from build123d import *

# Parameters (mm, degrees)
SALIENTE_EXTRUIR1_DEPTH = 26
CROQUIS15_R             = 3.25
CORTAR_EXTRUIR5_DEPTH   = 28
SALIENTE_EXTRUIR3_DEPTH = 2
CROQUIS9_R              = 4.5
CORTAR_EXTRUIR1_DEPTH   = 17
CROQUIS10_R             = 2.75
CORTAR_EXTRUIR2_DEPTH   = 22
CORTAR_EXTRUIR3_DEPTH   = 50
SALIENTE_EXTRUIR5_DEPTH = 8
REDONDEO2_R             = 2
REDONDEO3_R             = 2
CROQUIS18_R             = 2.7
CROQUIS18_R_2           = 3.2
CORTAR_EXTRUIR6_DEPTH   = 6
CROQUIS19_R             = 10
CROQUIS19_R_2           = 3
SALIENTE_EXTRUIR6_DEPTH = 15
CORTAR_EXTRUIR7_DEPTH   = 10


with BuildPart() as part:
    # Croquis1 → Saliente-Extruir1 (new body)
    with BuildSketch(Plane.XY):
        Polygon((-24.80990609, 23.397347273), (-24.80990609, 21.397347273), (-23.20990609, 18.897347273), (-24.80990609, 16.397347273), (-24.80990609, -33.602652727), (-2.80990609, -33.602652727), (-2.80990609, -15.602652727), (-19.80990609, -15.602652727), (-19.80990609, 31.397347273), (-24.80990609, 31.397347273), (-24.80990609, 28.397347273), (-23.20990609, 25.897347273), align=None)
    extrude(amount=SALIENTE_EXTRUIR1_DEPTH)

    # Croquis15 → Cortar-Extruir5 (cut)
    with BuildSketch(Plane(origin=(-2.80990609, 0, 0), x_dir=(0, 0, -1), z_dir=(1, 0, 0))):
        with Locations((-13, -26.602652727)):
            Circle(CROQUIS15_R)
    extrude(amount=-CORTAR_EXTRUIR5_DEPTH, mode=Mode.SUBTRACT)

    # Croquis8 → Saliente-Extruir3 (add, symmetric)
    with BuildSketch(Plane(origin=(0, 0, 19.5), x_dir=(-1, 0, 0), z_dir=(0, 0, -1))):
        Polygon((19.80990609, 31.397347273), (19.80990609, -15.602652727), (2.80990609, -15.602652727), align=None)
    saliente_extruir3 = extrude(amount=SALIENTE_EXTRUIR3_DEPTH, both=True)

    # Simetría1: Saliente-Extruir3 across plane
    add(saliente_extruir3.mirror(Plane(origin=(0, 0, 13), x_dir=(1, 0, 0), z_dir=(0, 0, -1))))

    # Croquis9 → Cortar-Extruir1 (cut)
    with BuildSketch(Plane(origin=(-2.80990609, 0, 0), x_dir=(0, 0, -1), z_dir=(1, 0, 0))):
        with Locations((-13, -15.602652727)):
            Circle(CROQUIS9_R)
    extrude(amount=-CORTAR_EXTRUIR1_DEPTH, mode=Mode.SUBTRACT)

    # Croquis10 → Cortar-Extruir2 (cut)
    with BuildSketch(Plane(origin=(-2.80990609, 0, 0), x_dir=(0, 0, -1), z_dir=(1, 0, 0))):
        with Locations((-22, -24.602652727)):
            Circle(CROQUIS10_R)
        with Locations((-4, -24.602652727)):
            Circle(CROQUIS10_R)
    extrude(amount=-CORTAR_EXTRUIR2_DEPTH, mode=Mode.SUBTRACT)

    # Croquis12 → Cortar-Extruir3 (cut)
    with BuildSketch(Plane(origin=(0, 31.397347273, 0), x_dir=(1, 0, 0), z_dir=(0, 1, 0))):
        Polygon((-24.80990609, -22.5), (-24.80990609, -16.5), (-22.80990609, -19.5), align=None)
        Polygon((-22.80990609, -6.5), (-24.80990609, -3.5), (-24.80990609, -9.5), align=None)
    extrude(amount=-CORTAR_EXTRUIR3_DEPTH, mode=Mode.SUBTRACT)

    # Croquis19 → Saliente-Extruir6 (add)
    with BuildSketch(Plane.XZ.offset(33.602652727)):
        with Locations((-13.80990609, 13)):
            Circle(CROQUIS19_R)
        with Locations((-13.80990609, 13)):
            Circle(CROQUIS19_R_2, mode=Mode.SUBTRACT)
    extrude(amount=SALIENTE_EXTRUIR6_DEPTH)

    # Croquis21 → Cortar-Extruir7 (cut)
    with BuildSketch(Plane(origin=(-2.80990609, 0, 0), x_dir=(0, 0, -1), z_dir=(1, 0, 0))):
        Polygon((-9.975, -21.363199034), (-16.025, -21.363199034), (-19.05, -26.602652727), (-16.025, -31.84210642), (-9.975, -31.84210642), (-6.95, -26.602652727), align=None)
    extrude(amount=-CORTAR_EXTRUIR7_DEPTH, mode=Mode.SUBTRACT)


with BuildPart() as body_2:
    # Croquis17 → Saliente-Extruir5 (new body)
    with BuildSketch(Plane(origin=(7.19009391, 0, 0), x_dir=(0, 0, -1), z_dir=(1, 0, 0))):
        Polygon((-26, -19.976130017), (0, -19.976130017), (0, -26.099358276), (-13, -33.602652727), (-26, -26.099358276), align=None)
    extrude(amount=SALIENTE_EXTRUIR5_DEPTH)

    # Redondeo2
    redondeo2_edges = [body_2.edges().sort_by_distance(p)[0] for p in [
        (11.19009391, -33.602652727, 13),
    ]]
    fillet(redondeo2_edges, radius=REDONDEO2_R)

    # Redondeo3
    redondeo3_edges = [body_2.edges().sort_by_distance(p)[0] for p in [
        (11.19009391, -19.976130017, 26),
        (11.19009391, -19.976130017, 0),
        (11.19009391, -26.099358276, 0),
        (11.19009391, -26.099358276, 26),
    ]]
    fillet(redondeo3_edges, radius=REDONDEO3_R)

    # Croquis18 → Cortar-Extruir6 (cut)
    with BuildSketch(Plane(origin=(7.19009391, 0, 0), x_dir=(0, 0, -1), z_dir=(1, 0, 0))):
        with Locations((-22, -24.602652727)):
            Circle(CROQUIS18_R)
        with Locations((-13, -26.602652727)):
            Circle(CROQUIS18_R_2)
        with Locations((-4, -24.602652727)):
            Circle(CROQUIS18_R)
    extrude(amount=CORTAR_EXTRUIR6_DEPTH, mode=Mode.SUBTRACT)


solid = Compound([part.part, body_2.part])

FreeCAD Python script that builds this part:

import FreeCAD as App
import Part
import Sketcher

V = App.Vector
Q = App.Units.Quantity


def edges_at(feature, points):
    """Names of the edges that pass closest to the given points."""
    edges = feature.Shape.Edges
    near = lambda p: min(range(len(edges)), key=lambda i: edges[i].distToShape(Part.Vertex(*p))[0])
    return sorted({f"Edge{near(p) + 1}" for p in points})


def add_polygon(sketch, points):
    """Adds a closed chain of lines whose ends are joined by coincident constraints."""
    first, n = sketch.GeometryCount, len(points)
    for a, b in zip(points, points[1:] + points[:1]):
        sketch.addGeometry(Part.LineSegment(App.Vector(*a, 0), App.Vector(*b, 0)), False)
    for i in range(n):
        sketch.addConstraint(Sketcher.Constraint("Coincident", first + i, 2, first + (i + 1) % n, 1))

doc = App.newDocument("Part")
body = doc.addObject("PartDesign::Body", "Body")

sketch1 = body.newObject("Sketcher::SketchObject", "Sketch")
sketch1.AttachmentSupport = (doc.getObject("XY_Plane"), [""])
sketch1.MapMode = "FlatFace"
add_polygon(sketch1, [(-24.8, 23.4), (-24.8, 21.4), (-23.2, 18.9), (-24.8, 16.4), (-24.8, -33.6), (-2.8, -33.6), (-2.8, -15.6), (-19.8, -15.6), (-19.8, 31.4), (-24.8, 31.4), (-24.8, 28.4), (-23.2, 25.9)])
sketch1.addConstraint([
    Sketcher.Constraint("Vertical", 0),
    Sketcher.Constraint("Vertical", 3),
    Sketcher.Constraint("Horizontal", 4),
    Sketcher.Constraint("Vertical", 5),
    Sketcher.Constraint("Horizontal", 6),
    Sketcher.Constraint("Vertical", 7),
    Sketcher.Constraint("Horizontal", 8),
    Sketcher.Constraint("Vertical", 9),
    Sketcher.Constraint("Parallel", 1, 10),
    Sketcher.Constraint("Parallel", 2, 11),
    Sketcher.Constraint("Vertical", 0, 2, 2, 2),
    Sketcher.Constraint("Vertical", 3, 2, 8, 2),
    Sketcher.Constraint("Vertical", 1, 2, 10, 2),
    Sketcher.Constraint("Equal", 1, 2),
    Sketcher.Constraint("DistanceX", 4, 1, 4, 2, 22.0),
    Sketcher.Constraint("DistanceX", 6, 2, 6, 1, 17.0),
    Sketcher.Constraint("DistanceY", 0, 2, 0, 1, 2.0),
    Sketcher.Constraint("DistanceY", 3, 2, 3, 1, 50.0),
    Sketcher.Constraint("DistanceY", 5, 1, 5, 2, 18.0),
    Sketcher.Constraint("DistanceY", 7, 1, 7, 2, 47.0),
    Sketcher.Constraint("DistanceY", 9, 2, 9, 1, 3.0),
    Sketcher.Constraint("DistanceX", 0, 2, 1, 2, 1.6),
    Sketcher.Constraint("DistanceX", 0, 2, -1, 1, 24.809906),
    Sketcher.Constraint("DistanceY", -1, 1, 0, 2, 21.397347),
])
pad1 = body.newObject("PartDesign::Pad", "Pad")
pad1.Profile = sketch1
pad1.Length = 26

sketch2 = body.newObject("Sketcher::SketchObject", "Sketch001")
sketch2.AttachmentSupport = (doc.getObject("YZ_Plane"), [""])
sketch2.MapMode = "FlatFace"
sketch2.AttachmentOffset = App.Placement(V(0, 0, -2.809906), App.Rotation())
sketch2.addGeometry(Part.Circle(V(-26.6, 13, 0), V(0, 0, 1), 3.2), False)
sketch2.addConstraint([
    Sketcher.Constraint("Diameter", 0, 6.5),
    Sketcher.Constraint("DistanceY", -1, 1, 0, 3, 13.0),
    Sketcher.Constraint("DistanceX", 0, 3, -1, 1, 26.602653),
])
pocket1 = body.newObject("PartDesign::Pocket", "Pocket")
pocket1.Profile = sketch2
pocket1.Length = 28

sketch3 = body.newObject("Sketcher::SketchObject", "Sketch002")
sketch3.AttachmentSupport = (doc.getObject("XY_Plane"), [""])
sketch3.MapMode = "FlatFace"
sketch3.AttachmentOffset = App.Placement(V(0, 0, 19.5), App.Rotation())
add_polygon(sketch3, [(-20, -16), (-20, 31), (-3, -16)])
sketch3.addConstraint([
    Sketcher.Constraint("Vertical", 0),
    Sketcher.Constraint("Horizontal", 2),
    Sketcher.Constraint("DistanceX", 2, 2, 2, 1, 17.0),
    Sketcher.Constraint("DistanceY", 0, 1, 0, 2, 47.0),
    Sketcher.Constraint("DistanceX", 0, 2, -1, 1, 19.809906),
    Sketcher.Constraint("DistanceY", -1, 1, 0, 2, 31.397347),
])
pad2 = body.newObject("PartDesign::Pad", "Pad001")
pad2.Profile = sketch3
pad2.Length = 4
pad2.Midplane = True
doc.recompute()

datumplane = body.newObject("PartDesign::Plane", "DatumPlane")
datumplane.AttachmentSupport = (doc.getObject("XY_Plane"), [""])
datumplane.MapMode = "FlatFace"
datumplane.AttachmentOffset = App.Placement(V(0, 0, 13), App.Rotation())
mirrored = body.newObject("PartDesign::Mirrored", "Mirrored")
mirrored.Originals = [pad2]
mirrored.MirrorPlane = (datumplane, [""])
body.Tip = mirrored

sketch4 = body.newObject("Sketcher::SketchObject", "Sketch003")
sketch4.AttachmentSupport = (doc.getObject("YZ_Plane"), [""])
sketch4.MapMode = "FlatFace"
sketch4.AttachmentOffset = App.Placement(V(0, 0, -2.809906), App.Rotation())
sketch4.addGeometry(Part.Circle(V(-15.6, 13, 0), V(0, 0, 1), 4.5), False)
sketch4.addConstraint([
    Sketcher.Constraint("Diameter", 0, 9.0),
    Sketcher.Constraint("DistanceY", -1, 1, 0, 3, 13.0),
    Sketcher.Constraint("DistanceX", 0, 3, -1, 1, 15.602653),
])
pocket2 = body.newObject("PartDesign::Pocket", "Pocket001")
pocket2.Profile = sketch4
pocket2.Length = 17

sketch5 = body.newObject("Sketcher::SketchObject", "Sketch004")
sketch5.AttachmentSupport = (doc.getObject("YZ_Plane"), [""])
sketch5.MapMode = "FlatFace"
sketch5.AttachmentOffset = App.Placement(V(0, 0, -2.809906), App.Rotation())
sketch5.addGeometry([
    Part.Circle(V(-24.6, 22, 0), V(0, 0, 1), 2.8),
    Part.Circle(V(-24.6, 4, 0), V(0, 0, 1), 2.8),
], False)
sketch5.addConstraint([
    Sketcher.Constraint("Equal", 0, 1),
    Sketcher.Constraint("Vertical", 0, 3, 1, 3),
    Sketcher.Constraint("Diameter", 0, 5.5),
    Sketcher.Constraint("DistanceY", -1, 1, 0, 3, 22.0),
    Sketcher.Constraint("DistanceY", -1, 1, 1, 3, 4.0),
    Sketcher.Constraint("DistanceX", 0, 3, -1, 1, 24.602653),
])
pocket3 = body.newObject("PartDesign::Pocket", "Pocket002")
pocket3.Profile = sketch5
pocket3.Length = 22

sketch6 = body.newObject("Sketcher::SketchObject", "Sketch005")
sketch6.AttachmentSupport = (doc.getObject("XZ_Plane"), [""])
sketch6.MapMode = "FlatFace"
sketch6.AttachmentOffset = App.Placement(V(0, 0, -31.397347), App.Rotation())
add_polygon(sketch6, [(-24.8, 16.5), (-24.8, 22.5), (-22.8, 19.5)])
add_polygon(sketch6, [(-22.8, 6.5), (-24.8, 3.5), (-24.8, 9.5)])
sketch6.addConstraint([
    Sketcher.Constraint("Vertical", 0),
    Sketcher.Constraint("Vertical", 4),
    Sketcher.Constraint("Parallel", 2, 3),
    Sketcher.Constraint("Parallel", 1, 5),
    Sketcher.Constraint("Vertical", 2, 2, 3, 2),
    Sketcher.Constraint("Vertical", 1, 2, 5, 2),
    Sketcher.Constraint("Equal", 1, 2),
    Sketcher.Constraint("DistanceY", 0, 1, 0, 2, 6.0),
    Sketcher.Constraint("DistanceX", 0, 2, 1, 2, 2.0),
    Sketcher.Constraint("DistanceY", 3, 2, 2, 2, 13.0),
    Sketcher.Constraint("DistanceY", -1, 1, 0, 2, 22.5),
    Sketcher.Constraint("DistanceX", 0, 2, -1, 1, 24.809906),
])
pocket4 = body.newObject("PartDesign::Pocket", "Pocket003")
pocket4.Profile = sketch6
pocket4.Length = 50
pocket4.Reversed = True

sketch7 = body.newObject("Sketcher::SketchObject", "Sketch006")
sketch7.AttachmentSupport = (doc.getObject("XZ_Plane"), [""])
sketch7.MapMode = "FlatFace"
sketch7.AttachmentOffset = App.Placement(V(0, 0, 33.602653), App.Rotation())
sketch7.addGeometry([
    Part.Circle(V(-13.8, 13, 0), V(0, 0, 1), 10),
    Part.Circle(V(-13.8, 13, 0), V(0, 0, 1), 3),
], False)
sketch7.addConstraint([
    Sketcher.Constraint("Coincident", 1, 3, 0, 3),
    Sketcher.Constraint("Diameter", 0, 20.0),
    Sketcher.Constraint("Diameter", 1, 6.0),
    Sketcher.Constraint("DistanceY", -1, 1, 0, 3, 13.0),
    Sketcher.Constraint("DistanceX", 0, 3, -1, 1, 13.809906),
])
pad3 = body.newObject("PartDesign::Pad", "Pad002")
pad3.Profile = sketch7
pad3.Length = 15

sketch8 = body.newObject("Sketcher::SketchObject", "Sketch007")
sketch8.AttachmentSupport = (doc.getObject("YZ_Plane"), [""])
sketch8.MapMode = "FlatFace"
sketch8.AttachmentOffset = App.Placement(V(0, 0, -2.809906), App.Rotation())
add_polygon(sketch8, [(-21, 10), (-21, 16), (-27, 19), (-32, 16), (-32, 10), (-27, 7)])
sketch8.addConstraint([
    Sketcher.Constraint("Vertical", 0),
    Sketcher.Constraint("Vertical", 3),
    Sketcher.Constraint("Parallel", 1, 4),
    Sketcher.Constraint("Parallel", 2, 5),
    Sketcher.Constraint("Horizontal", 0, 2, 2, 2),
    Sketcher.Constraint("Horizontal", 3, 2, 5, 2),
    Sketcher.Constraint("Vertical", 1, 2, 4, 2),
    Sketcher.Constraint("Angle", 1, Q("150 deg")),
    Sketcher.Constraint("DistanceY", 0, 1, 0, 2, 6.05),
    Sketcher.Constraint("DistanceY", 4, 2, 1, 2, 12.1),
    Sketcher.Constraint("DistanceY", -1, 1, 1, 2, 19.05),
    Sketcher.Constraint("DistanceX", 0, 2, -1, 1, 21.363199),
])
pocket5 = body.newObject("PartDesign::Pocket", "Pocket004")
pocket5.Profile = sketch8
pocket5.Length = 10
body2 = doc.addObject("PartDesign::Body", "Body001")

sketch9 = body2.newObject("Sketcher::SketchObject", "Sketch008")
sketch9.AttachmentSupport = (doc.getObject("YZ_Plane001"), [""])
sketch9.MapMode = "FlatFace"
sketch9.AttachmentOffset = App.Placement(V(0, 0, 7.190094), App.Rotation())
add_polygon(sketch9, [(-20, 0), (-20, 26), (-26, 26), (-34, 13), (-26, 0)])
sketch9.addConstraint([
    Sketcher.Constraint("Vertical", 0),
    Sketcher.Constraint("Horizontal", 1),
    Sketcher.Constraint("Horizontal", 4),
    Sketcher.Constraint("PointOnObject", 3, 2, -1),
    Sketcher.Constraint("Vertical", 1, 2, 3, 2),
    Sketcher.Constraint("Equal", 2, 3),
    Sketcher.Constraint("DistanceY", 0, 1, 0, 2, 26.0),
    Sketcher.Constraint("DistanceX", 1, 2, 1, 1, 6.123228),
    Sketcher.Constraint("DistanceX", 0, 2, -1, 1, 19.97613),
    Sketcher.Constraint("Distance", 2, 15.009978),
])
pad4 = body2.newObject("PartDesign::Pad", "Pad003")
pad4.Profile = sketch9
pad4.Length = 8
doc.recompute()

fillet = body2.newObject("PartDesign::Fillet", "Fillet")
fillet.Base = (pad4, edges_at(pad4, [(11.19, -33.603, 13)]))
fillet.Radius = 2
doc.recompute()

fillet2 = body2.newObject("PartDesign::Fillet", "Fillet001")
fillet2.Base = (fillet, edges_at(fillet, [
    (11.19, -19.976, 26),
    (11.19, -19.976, 0),
    (11.19, -26.099, 0),
    (11.19, -26.099, 26),
]))
fillet2.Radius = 2

sketch10 = body2.newObject("Sketcher::SketchObject", "Sketch009")
sketch10.AttachmentSupport = (doc.getObject("YZ_Plane001"), [""])
sketch10.MapMode = "FlatFace"
sketch10.AttachmentOffset = App.Placement(V(0, 0, 7.190094), App.Rotation())
sketch10.addGeometry([
    Part.Circle(V(-24.6, 22, 0), V(0, 0, 1), 2.7),
    Part.Circle(V(-26.6, 13, 0), V(0, 0, 1), 3.2),
    Part.Circle(V(-24.6, 4, 0), V(0, 0, 1), 2.7),
], False)
sketch10.addConstraint([
    Sketcher.Constraint("Equal", 0, 2),
    Sketcher.Constraint("Vertical", 0, 3, 2, 3),
    Sketcher.Constraint("Diameter", 0, 5.4),
    Sketcher.Constraint("Diameter", 1, 6.4),
    Sketcher.Constraint("DistanceY", -1, 1, 0, 3, 22.0),
    Sketcher.Constraint("DistanceY", -1, 1, 1, 3, 13.0),
    Sketcher.Constraint("DistanceY", -1, 1, 2, 3, 4.0),
    Sketcher.Constraint("DistanceX", 1, 3, 0, 3, 2.0),
    Sketcher.Constraint("DistanceX", 0, 3, -1, 1, 24.602653),
])
pocket6 = body2.newObject("PartDesign::Pocket", "Pocket005")
pocket6.Profile = sketch10
pocket6.Length = 6
pocket6.Reversed = True

doc.recompute()
